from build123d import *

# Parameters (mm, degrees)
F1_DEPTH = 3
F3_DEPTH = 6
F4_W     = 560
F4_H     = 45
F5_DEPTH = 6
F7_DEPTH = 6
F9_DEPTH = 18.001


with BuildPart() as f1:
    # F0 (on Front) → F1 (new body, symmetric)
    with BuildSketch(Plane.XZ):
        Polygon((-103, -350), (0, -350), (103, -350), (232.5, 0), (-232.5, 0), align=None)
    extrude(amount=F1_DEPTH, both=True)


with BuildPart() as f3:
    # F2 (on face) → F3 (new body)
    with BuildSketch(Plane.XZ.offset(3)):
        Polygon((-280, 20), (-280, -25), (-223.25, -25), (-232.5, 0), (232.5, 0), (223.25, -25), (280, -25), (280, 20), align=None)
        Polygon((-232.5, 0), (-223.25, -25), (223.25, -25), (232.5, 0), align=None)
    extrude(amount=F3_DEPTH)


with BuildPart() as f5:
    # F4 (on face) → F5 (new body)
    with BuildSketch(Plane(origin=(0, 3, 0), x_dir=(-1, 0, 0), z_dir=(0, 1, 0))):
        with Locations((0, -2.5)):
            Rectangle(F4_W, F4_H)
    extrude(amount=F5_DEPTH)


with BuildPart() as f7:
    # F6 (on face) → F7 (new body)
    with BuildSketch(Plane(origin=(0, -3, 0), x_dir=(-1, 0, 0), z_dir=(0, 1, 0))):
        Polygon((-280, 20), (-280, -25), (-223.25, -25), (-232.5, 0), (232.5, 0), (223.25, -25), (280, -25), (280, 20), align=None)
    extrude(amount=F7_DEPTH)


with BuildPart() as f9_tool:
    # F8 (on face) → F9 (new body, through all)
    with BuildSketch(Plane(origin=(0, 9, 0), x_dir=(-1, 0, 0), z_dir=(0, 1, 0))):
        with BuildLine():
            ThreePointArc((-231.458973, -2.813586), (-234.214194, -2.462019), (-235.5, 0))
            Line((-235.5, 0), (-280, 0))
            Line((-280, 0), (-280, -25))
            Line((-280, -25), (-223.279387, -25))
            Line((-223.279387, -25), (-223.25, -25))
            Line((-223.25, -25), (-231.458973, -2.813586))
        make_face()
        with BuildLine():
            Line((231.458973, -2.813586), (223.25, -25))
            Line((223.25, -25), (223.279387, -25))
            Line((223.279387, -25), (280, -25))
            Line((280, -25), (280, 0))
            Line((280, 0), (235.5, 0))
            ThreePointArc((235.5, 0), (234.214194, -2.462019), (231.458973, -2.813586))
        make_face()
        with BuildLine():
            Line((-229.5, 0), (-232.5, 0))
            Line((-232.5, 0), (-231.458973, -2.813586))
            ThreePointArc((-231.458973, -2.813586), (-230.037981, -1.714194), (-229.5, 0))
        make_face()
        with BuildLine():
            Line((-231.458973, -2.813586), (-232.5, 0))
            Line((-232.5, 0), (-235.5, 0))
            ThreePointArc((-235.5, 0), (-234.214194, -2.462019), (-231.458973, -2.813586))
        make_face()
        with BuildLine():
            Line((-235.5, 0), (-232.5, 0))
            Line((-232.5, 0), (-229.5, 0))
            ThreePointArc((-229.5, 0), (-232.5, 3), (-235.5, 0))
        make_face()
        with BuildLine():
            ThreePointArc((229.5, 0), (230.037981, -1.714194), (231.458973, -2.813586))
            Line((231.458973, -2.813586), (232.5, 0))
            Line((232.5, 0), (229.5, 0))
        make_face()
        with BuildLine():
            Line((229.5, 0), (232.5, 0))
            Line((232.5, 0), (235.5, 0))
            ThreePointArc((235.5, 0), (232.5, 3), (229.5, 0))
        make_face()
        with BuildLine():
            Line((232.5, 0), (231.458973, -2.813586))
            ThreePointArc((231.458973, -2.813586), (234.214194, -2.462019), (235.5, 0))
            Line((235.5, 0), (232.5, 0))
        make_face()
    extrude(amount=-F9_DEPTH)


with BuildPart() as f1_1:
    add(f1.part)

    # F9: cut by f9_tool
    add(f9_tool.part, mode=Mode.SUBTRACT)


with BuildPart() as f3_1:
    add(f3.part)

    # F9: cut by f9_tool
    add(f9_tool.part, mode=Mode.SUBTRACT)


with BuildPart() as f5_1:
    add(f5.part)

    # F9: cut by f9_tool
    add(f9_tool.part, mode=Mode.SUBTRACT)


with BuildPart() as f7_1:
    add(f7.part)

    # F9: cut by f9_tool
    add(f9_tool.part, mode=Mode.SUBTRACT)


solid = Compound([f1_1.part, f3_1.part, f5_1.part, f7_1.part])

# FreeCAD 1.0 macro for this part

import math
import FreeCAD as App
import Part
import Sketcher
from FreeCAD import Vector
Q = App.Units.Quantity

doc = App.newDocument("Part")
body = doc.addObject("PartDesign::Body", "Body")

sketch1 = body.newObject("Sketcher::SketchObject", "Sketch")
sketch1.AttachmentSupport = (doc.getObject("XZ_Plane"), [""])
sketch1.MapMode = "FlatFace"
sketch1.addGeometry([
    Part.LineSegment(Vector(-103, -350, 0), Vector(103, -350, 0)),
    Part.LineSegment(Vector(103, -350, 0), Vector(232.5, 0, 0)),
    Part.LineSegment(Vector(232.5, 0, 0), Vector(-232.5, 0, 0)),
    Part.LineSegment(Vector(-232.5, 0, 0), Vector(-103, -350, 0)),
], False)
sketch1.addConstraint([
    Sketcher.Constraint("Coincident", 0, 2, 1, 1),
    Sketcher.Constraint("Coincident", 1, 2, 2, 1),
    Sketcher.Constraint("Coincident", 2, 2, 3, 1),
    Sketcher.Constraint("Coincident", 3, 2, 0, 1),
    Sketcher.Constraint("Horizontal", 0),
    Sketcher.Constraint("Horizontal", 2),
    Sketcher.Constraint("Symmetric", 1, 2, 2, 2, -1, 1),
    Sketcher.Constraint("Equal", 1, 3),
    Sketcher.Constraint("DistanceX", 0, 1, 0, 2, Q("206 mm")),
    Sketcher.Constraint("DistanceX", 2, 2, 2, 1, Q("465 mm")),
    Sketcher.Constraint("DistanceY", 0, 2, -1, 1, Q("350 mm")),
])
pad1 = body.newObject("PartDesign::Pad", "Pad")
pad1.Profile = sketch1
pad1.Length = 6
pad1.Midplane = True
body2 = doc.addObject("PartDesign::Body", "Body001")

sketch2 = body2.newObject("Sketcher::SketchObject", "Sketch001")
sketch2.AttachmentSupport = (doc.getObject("XZ_Plane001"), [""])
sketch2.MapMode = "FlatFace"
sketch2.AttachmentOffset = App.Placement(Vector(0, 0, 3), App.Rotation())
sketch2.addGeometry([
    Part.LineSegment(Vector(-280, 20, 0), Vector(-280, -25, 0)),
    Part.LineSegment(Vector(-280, -25, 0), Vector(280, -25, 0)),
    Part.LineSegment(Vector(280, -25, 0), Vector(280, 20, 0)),
    Part.LineSegment(Vector(280, 20, 0), Vector(-280, 20, 0)),
], False)
sketch2.addConstraint([
    Sketcher.Constraint("Coincident", 0, 2, 1, 1),
    Sketcher.Constraint("Coincident", 1, 2, 2, 1),
    Sketcher.Constraint("Coincident", 2, 2, 3, 1),
    Sketcher.Constraint("Coincident", 3, 2, 0, 1),
    Sketcher.Constraint("Vertical", 0),
    Sketcher.Constraint("Horizontal", 1),
    Sketcher.Constraint("Vertical", 2),
    Sketcher.Constraint("Horizontal", 3),
    Sketcher.Constraint("DistanceX", 1, 1, 1, 2, Q("560 mm")),
    Sketcher.Constraint("DistanceY", 0, 2, 0, 1, Q("45 mm")),
    Sketcher.Constraint("DistanceX", 0, 2, -1, 1, Q("280 mm")),
    Sketcher.Constraint("DistanceY", 0, 2, -1, 1, Q("25 mm")),
])
pad2 = body2.newObject("PartDesign::Pad", "Pad001")
pad2.Profile = sketch2
pad2.Length = 6
body3 = doc.addObject("PartDesign::Body", "Body002")

sketch3 = body3.newObject("Sketcher::SketchObject", "Sketch002")
sketch3.AttachmentSupport = (doc.getObject("XZ_Plane002"), [""])
sketch3.MapMode = "FlatFace"
sketch3.AttachmentOffset = App.Placement(Vector(0, 0, -3), App.Rotation())
sketch3.addGeometry([
    Part.LineSegment(Vector(280, 20, 0), Vector(280, -25, 0)),
    Part.LineSegment(Vector(280, -25, 0), Vector(-280, -25, 0)),
    Part.LineSegment(Vector(-280, -25, 0), Vector(-280, 20, 0)),
    Part.LineSegment(Vector(-280, 20, 0), Vector(280, 20, 0)),
], False)
sketch3.addConstraint([
    Sketcher.Constraint("Coincident", 0, 2, 1, 1),
    Sketcher.Constraint("Coincident", 1, 2, 2, 1),
    Sketcher.Constraint("Coincident", 2, 2, 3, 1),
    Sketcher.Constraint("Coincident", 3, 2, 0, 1),
    Sketcher.Constraint("Vertical", 0),
    Sketcher.Constraint("Horizontal", 1),
    Sketcher.Constraint("Vertical", 2),
    Sketcher.Constraint("Horizontal", 3),
    Sketcher.Constraint("DistanceX", 1, 2, 1, 1, Q("560 mm")),
    Sketcher.Constraint("DistanceY", 0, 2, 0, 1, Q("45 mm")),
    Sketcher.Constraint("DistanceX", -1, 1, 0, 2, Q("280 mm")),
    Sketcher.Constraint("DistanceY", 0, 2, -1, 1, Q("25 mm")),
])
pad3 = body3.newObject("PartDesign::Pad", "Pad002")
pad3.Profile = sketch3
pad3.Length = 6
pad3.Reversed = True
body4 = doc.addObject("PartDesign::Body", "Body003")

sketch4 = body4.newObject("Sketcher::SketchObject", "Sketch003")
sketch4.AttachmentSupport = (doc.getObject("XZ_Plane003"), [""])
sketch4.MapMode = "FlatFace"
sketch4.AttachmentOffset = App.Placement(Vector(0, 0, 3), App.Rotation())
sketch4.addGeometry([
    Part.LineSegment(Vector(280, 20, 0), Vector(280, -25, 0)),
    Part.LineSegment(Vector(280, -25, 0), Vector(223.25, -25, 0)),
    Part.LineSegment(Vector(223.25, -25, 0), Vector(232.5, 0, 0)),
    Part.LineSegment(Vector(232.5, 0, 0), Vector(-232.5, 0, 0)),
    Part.LineSegment(Vector(-232.5, 0, 0), Vector(-223.25, -25, 0)),
    Part.LineSegment(Vector(-223.25, -25, 0), Vector(-280, -25, 0)),
    Part.LineSegment(Vector(-280, -25, 0), Vector(-280, 20, 0)),
    Part.LineSegment(Vector(-280, 20, 0), Vector(280, 20, 0)),
], False)
sketch4.addConstraint([
    Sketcher.Constraint("Coincident", 0, 2, 1, 1),
    Sketcher.Constraint("Coincident", 1, 2, 2, 1),
    Sketcher.Constraint("Coincident", 2, 2, 3, 1),
    Sketcher.Constraint("Coincident", 3, 2, 4, 1),
    Sketcher.Constraint("Coincident", 4, 2, 5, 1),
    Sketcher.Constraint("Coincident", 5, 2, 6, 1),
    Sketcher.Constraint("Coincident", 6, 2, 7, 1),
    Sketcher.Constraint("Coincident", 7, 2, 0, 1),
    Sketcher.Constraint("Vertical", 0),
    Sketcher.Constraint("Horizontal", 1),
    Sketcher.Constraint("Horizontal", 3),
    Sketcher.Constraint("Horizontal", 5),
    Sketcher.Constraint("Vertical", 6),
    Sketcher.Constraint("Horizontal", 7),
    Sketcher.Constraint("Symmetric", 2, 2, 3, 2, -1, 1),
    Sketcher.Constraint("Symmetric", 1, 2, 4, 2, -2),
    Sketcher.Constraint("Equal", 1, 5),
    Sketcher.Constraint("DistanceX", 3, 2, 3, 1, Q("465 mm")),
    Sketcher.Constraint("DistanceX", 7, 1, 7, 2, Q("560 mm")),
    Sketcher.Constraint("DistanceY", 0, 2, 0, 1, Q("45 mm")),
    Sketcher.Constraint("DistanceY", 0, 2, -1, 1, Q("25 mm")),
    Sketcher.Constraint("DistanceX", 1, 2, 1, 1, Q("56.75 mm")),
])
pad4 = body4.newObject("PartDesign::Pad", "Pad003")
pad4.Profile = sketch4
pad4.Length = 6
pad4.Reversed = True
body5 = doc.addObject("PartDesign::Body", "Body004")
body5.AllowCompound = True

sketch5 = body5.newObject("Sketcher::SketchObject", "Sketch004")
sketch5.AttachmentSupport = (doc.getObject("XZ_Plane004"), [""])
sketch5.MapMode = "FlatFace"
sketch5.AttachmentOffset = App.Placement(Vector(0, 0, -9), App.Rotation())
sketch5.addGeometry([
    Part.LineSegment(Vector(280, 0, 0), Vector(280, -25, 0)),
    Part.LineSegment(Vector(280, -25, 0), Vector(223.25, -25, 0)),
    Part.LineSegment(Vector(223.25, -25, 0), Vector(231.458973, -2.813586, 0)),
    Part.ArcOfCircle(Part.Circle(Vector(232.500003, 0.000001, 0), Vector(0, 0, 1), 3.000003), math.radians(-179.999977), math.radians(-110.304516)),
    Part.ArcOfCircle(Part.Circle(Vector(232.5, 0, 0), Vector(0, 0, 1), 3), math.radians(0), math.radians(180)),
    Part.LineSegment(Vector(235.5, 0, 0), Vector(280, 0, 0)),
    Part.LineSegment(Vector(-231.458973, -2.813586, 0), Vector(-223.25, -25, 0)),
    Part.LineSegment(Vector(-223.25, -25, 0), Vector(-280, -25, 0)),
    Part.LineSegment(Vector(-280, -25, 0), Vector(-280, 0, 0)),
    Part.LineSegment(Vector(-280, 0, 0), Vector(-235.5, 0, 0)),
    Part.ArcOfCircle(Part.Circle(Vector(-232.5, 0, 0), Vector(0, 0, 1), 3), math.radians(0), math.radians(180)),
    Part.ArcOfCircle(Part.Circle(Vector(-232.500003, 0.000001, 0), Vector(0, 0, 1), 3.000003), math.radians(-69.695484), math.radians(-0.000023)),
], False)
sketch5.addConstraint([
    Sketcher.Constraint("Coincident", 0, 2, 1, 1),
    Sketcher.Constraint("Coincident", 1, 2, 2, 1),
    Sketcher.Constraint("Coincident", 2, 2, 3, 2),
    Sketcher.Constraint("Tangent", 3, 1, 4, 2),
    Sketcher.Constraint("Coincident", 4, 1, 5, 1),
    Sketcher.Constraint("Coincident", 5, 2, 0, 1),
    Sketcher.Constraint("Coincident", 6, 2, 7, 1),
    Sketcher.Constraint("Coincident", 7, 2, 8, 1),
    Sketcher.Constraint("Coincident", 8, 2, 9, 1),
    Sketcher.Constraint("Coincident", 9, 2, 10, 2),
    Sketcher.Constraint("Tangent", 10, 1, 11, 2),
    Sketcher.Constraint("Coincident", 11, 1, 6, 1),
    Sketcher.Constraint("Vertical", 0),
    Sketcher.Constraint("Horizontal", 1),
    Sketcher.Constraint("Horizontal", 5),
    Sketcher.Constraint("Horizontal", 7),
    Sketcher.Constraint("Vertical", 8),
    Sketcher.Constraint("Horizontal", 9),
    Sketcher.Constraint("Equal", 4, 10),
    Sketcher.Constraint("Equal", 3, 11),
    Sketcher.Constraint("Symmetric", 3, 3, 10, 3, -1, 1),
    Sketcher.Constraint("Symmetric", 5, 2, 8, 2, -1, 1),
    Sketcher.Constraint("Symmetric", 3, 1, 10, 1, -1, 1),
    Sketcher.Constraint("Symmetric", 1, 2, 6, 2, -2),
    Sketcher.Constraint("Symmetric", 2, 2, 11, 1, -2),
    Sketcher.Constraint("PointOnObject", 3, 1, -1),
    Sketcher.Constraint("PointOnObject", 4, 1, -1),
    Sketcher.Constraint("Radius", 4, Q("3 mm")),
    Sketcher.Constraint("DistanceY", 0, 2, 0, 1, Q("25 mm")),
    Sketcher.Constraint("DistanceX", 5, 1, 5, 2, Q("44.5 mm")),
    Sketcher.Constraint("DistanceX", -1, 1, 0, 2, Q("280 mm")),
    Sketcher.Constraint("DistanceX", 1, 2, 1, 1, Q("56.75 mm")),
    Sketcher.Constraint("DistanceX", 2, 2, 3, 3, Q("1.04103 mm")),
])
pad5 = body5.newObject("PartDesign::Pad", "Pad004")
pad5.Profile = sketch5
pad5.Length = 18.001
doc.recompute()

body6 = doc.addObject("PartDesign::Body", "Body005")
body6.BaseFeature = body5
boolean = body.newObject("PartDesign::Boolean", "Boolean")
boolean.Type = "Cut"
boolean.addObjects([body6])
doc.recompute()

body7 = doc.addObject("PartDesign::Body", "Body006")
body7.BaseFeature = body5
boolean2 = body2.newObject("PartDesign::Boolean", "Boolean001")
boolean2.Type = "Cut"
boolean2.addObjects([body7])
doc.recompute()

body8 = doc.addObject("PartDesign::Body", "Body007")
body8.BaseFeature = body5
boolean3 = body3.newObject("PartDesign::Boolean", "Boolean002")
boolean3.Type = "Cut"
boolean3.addObjects([body8])
doc.recompute()

boolean4 = body4.newObject("PartDesign::Boolean", "Boolean003")
boolean4.Type = "Cut"
boolean4.addObjects([body5])

doc.recompute()
